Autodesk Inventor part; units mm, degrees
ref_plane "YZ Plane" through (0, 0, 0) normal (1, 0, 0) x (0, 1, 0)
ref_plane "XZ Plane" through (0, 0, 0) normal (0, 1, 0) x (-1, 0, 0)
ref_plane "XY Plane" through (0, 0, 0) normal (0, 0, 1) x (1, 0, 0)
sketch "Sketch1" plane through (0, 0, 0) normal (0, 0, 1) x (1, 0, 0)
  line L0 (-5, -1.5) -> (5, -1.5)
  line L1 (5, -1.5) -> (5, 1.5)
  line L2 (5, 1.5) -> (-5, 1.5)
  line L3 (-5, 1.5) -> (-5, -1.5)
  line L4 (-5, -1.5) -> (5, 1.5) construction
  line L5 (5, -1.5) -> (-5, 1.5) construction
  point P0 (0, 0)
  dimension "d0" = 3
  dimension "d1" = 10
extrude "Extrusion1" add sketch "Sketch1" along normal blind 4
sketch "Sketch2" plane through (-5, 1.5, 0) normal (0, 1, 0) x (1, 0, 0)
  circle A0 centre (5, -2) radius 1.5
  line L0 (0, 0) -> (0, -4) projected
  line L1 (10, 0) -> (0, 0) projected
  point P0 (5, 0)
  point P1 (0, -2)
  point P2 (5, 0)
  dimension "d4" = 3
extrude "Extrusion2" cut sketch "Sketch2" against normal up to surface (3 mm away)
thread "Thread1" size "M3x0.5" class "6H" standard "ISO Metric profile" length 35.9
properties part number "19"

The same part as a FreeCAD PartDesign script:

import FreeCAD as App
import Part
import Sketcher
from FreeCAD import Vector
Q = App.Units.Quantity


def add_polygon(sketch, points):
    """Adds a closed chain of lines whose ends are joined by coincident constraints."""
    first, n = sketch.GeometryCount, len(points)
    for a, b in zip(points, points[1:] + points[:1]):
        sketch.addGeometry(Part.LineSegment(App.Vector(*a, 0), App.Vector(*b, 0)), False)
    for i in range(n):
        sketch.addConstraint(Sketcher.Constraint("Coincident", first + i, 2, first + (i + 1) % n, 1))

doc = App.newDocument("Part")
body = doc.addObject("PartDesign::Body", "Body")

# Sketch on XY plane
sketch1 = body.newObject("Sketcher::SketchObject", "Sketch")
sketch1.AttachmentSupport = (doc.getObject("XY_Plane"), [""])
sketch1.MapMode = "FlatFace"
add_polygon(sketch1, [(-5, 1.5), (-5, -1.5), (5, -1.5), (5, 1.5)])  # lines 0-3
sketch1.addConstraint([
    Sketcher.Constraint("Vertical", 0),
    Sketcher.Constraint("Horizontal", 1),
    Sketcher.Constraint("Vertical", 2),
    Sketcher.Constraint("Horizontal", 3),
    Sketcher.Constraint("Symmetric", 0, 2, 2, 2, -1, 1),
    Sketcher.Constraint("DistanceX", 1, 1, 1, 2, Q("10 mm")),
    Sketcher.Constraint("DistanceY", 0, 2, 0, 1, Q("3 mm")),
])
pad1 = body.newObject("PartDesign::Pad", "Pad")
pad1.Profile = sketch1
pad1.Length = 4

# Sketch on XZ plane
sketch2 = body.newObject("Sketcher::SketchObject", "Sketch001")
sketch2.AttachmentSupport = (doc.getObject("XZ_Plane"), [""])
sketch2.MapMode = "FlatFace"
sketch2.AttachmentOffset = App.Placement(Vector(0, 0, -1.5), App.Rotation())
sketch2.addGeometry(Part.Circle(Vector(0, 2, 0), Vector(0, 0, 1), 1.5), False)
sketch2.addConstraint([
    Sketcher.Constraint("PointOnObject", 0, 3, -2),
    Sketcher.Constraint("Diameter", 0, Q("3 mm")),
    Sketcher.Constraint("DistanceY", -1, 1, 0, 3, Q("2 mm")),
])
pocket1 = body.newObject("PartDesign::Pocket", "Pocket")
pocket1.Profile = sketch2
pocket1.Length = 3
pocket1.Reversed = True

doc.recompute()
